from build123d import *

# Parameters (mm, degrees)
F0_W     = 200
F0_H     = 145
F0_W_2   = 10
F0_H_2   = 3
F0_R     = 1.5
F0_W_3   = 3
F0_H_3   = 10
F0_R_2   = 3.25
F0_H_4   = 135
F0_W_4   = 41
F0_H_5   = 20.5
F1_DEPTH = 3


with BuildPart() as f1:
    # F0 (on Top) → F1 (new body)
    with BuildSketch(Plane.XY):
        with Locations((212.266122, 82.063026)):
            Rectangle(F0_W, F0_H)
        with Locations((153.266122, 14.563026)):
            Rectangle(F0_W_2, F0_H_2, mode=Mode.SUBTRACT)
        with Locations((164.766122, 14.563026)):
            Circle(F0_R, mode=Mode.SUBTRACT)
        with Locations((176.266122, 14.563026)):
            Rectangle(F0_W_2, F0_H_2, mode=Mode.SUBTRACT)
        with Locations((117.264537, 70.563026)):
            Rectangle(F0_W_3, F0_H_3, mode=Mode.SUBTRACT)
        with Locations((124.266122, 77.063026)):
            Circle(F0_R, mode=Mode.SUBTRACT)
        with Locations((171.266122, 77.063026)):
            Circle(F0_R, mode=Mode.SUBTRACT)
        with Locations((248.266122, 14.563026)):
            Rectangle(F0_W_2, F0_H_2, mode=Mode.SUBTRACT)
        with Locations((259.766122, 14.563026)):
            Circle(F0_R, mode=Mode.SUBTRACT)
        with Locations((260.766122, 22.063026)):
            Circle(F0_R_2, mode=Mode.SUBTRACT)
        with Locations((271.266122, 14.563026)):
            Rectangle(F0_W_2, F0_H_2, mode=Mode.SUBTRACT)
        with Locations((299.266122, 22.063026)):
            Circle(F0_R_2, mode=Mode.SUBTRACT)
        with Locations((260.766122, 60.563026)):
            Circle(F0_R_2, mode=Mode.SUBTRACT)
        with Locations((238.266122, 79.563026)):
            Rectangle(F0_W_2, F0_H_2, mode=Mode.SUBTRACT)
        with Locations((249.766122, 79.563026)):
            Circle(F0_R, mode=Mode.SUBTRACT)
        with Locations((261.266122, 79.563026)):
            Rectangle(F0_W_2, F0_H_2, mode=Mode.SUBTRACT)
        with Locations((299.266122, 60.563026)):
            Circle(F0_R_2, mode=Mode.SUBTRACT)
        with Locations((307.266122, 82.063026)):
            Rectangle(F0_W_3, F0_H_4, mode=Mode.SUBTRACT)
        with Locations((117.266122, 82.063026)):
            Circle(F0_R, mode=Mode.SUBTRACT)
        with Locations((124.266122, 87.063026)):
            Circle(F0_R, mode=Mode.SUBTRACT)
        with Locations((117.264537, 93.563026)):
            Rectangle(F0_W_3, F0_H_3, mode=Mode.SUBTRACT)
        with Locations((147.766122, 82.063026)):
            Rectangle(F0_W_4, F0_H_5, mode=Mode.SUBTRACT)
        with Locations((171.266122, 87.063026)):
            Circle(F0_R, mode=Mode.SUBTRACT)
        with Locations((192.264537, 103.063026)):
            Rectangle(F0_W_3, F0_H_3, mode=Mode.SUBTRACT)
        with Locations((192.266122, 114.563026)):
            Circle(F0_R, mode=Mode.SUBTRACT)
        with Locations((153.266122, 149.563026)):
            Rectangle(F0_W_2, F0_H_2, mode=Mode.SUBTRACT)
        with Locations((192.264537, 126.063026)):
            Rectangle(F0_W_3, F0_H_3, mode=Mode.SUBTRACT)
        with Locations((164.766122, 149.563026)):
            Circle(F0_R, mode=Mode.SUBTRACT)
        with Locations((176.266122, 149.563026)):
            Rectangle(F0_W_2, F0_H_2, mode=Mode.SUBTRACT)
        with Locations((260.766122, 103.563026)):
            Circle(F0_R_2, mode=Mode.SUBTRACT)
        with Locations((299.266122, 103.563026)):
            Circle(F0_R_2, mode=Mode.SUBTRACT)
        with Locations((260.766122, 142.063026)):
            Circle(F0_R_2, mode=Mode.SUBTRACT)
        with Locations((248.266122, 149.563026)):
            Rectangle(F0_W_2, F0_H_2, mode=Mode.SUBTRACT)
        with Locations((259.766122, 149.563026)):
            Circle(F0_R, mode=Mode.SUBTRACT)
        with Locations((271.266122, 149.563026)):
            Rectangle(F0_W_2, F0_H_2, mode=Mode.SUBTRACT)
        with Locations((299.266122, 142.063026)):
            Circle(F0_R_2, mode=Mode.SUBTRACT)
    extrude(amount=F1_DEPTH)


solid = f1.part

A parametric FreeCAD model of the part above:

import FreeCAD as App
import Part
import Sketcher
Q = App.Units.Quantity

doc = App.newDocument("Part")
body = doc.addObject("PartDesign::Body", "Body")

sketch1 = doc.addObject("Sketcher::SketchObject", "Sketch")
body.addObject(sketch1)
sketch1.AttachmentSupport = (doc.XY_Plane, [""])
sketch1.MapMode = "FlatFace"
sketch1.addGeometry([
    Part.LineSegment(App.Vector(112.266122, 154.563026, 0), App.Vector(112.266122, 9.563026, 0)),
    Part.LineSegment(App.Vector(112.266122, 9.563026, 0), App.Vector(312.266122, 9.563026, 0)),
    Part.LineSegment(App.Vector(312.266122, 9.563026, 0), App.Vector(312.266122, 154.563026, 0)),
    Part.LineSegment(App.Vector(312.266122, 154.563026, 0), App.Vector(112.266122, 154.563026, 0)),
    Part.LineSegment(App.Vector(158.266122, 13.063026, 0), App.Vector(148.266122, 13.063026, 0)),
    Part.LineSegment(App.Vector(148.266122, 13.063026, 0), App.Vector(148.266122, 16.063026, 0)),
    Part.LineSegment(App.Vector(148.266122, 16.063026, 0), App.Vector(158.266122, 16.063026, 0)),
    Part.LineSegment(App.Vector(158.266122, 16.063026, 0), App.Vector(158.266122, 13.063026, 0)),
    Part.Circle(App.Vector(164.766122, 14.563026, 0), App.Vector(0, 0, 1), 1.5),
    Part.LineSegment(App.Vector(181.266122, 13.063026, 0), App.Vector(171.266122, 13.063026, 0)),
    Part.LineSegment(App.Vector(171.266122, 13.063026, 0), App.Vector(171.266122, 16.063026, 0)),
    Part.LineSegment(App.Vector(171.266122, 16.063026, 0), App.Vector(181.266122, 16.063026, 0)),
    Part.LineSegment(App.Vector(181.266122, 16.063026, 0), App.Vector(181.266122, 13.063026, 0)),
    Part.LineSegment(App.Vector(118.764537, 65.563026, 0), App.Vector(115.764537, 65.563026, 0)),
    Part.LineSegment(App.Vector(115.764537, 65.563026, 0), App.Vector(115.764537, 75.563026, 0)),
    Part.LineSegment(App.Vector(115.764537, 75.563026, 0), App.Vector(118.764537, 75.563026, 0)),
    Part.LineSegment(App.Vector(118.764537, 75.563026, 0), App.Vector(118.764537, 65.563026, 0)),
    Part.Circle(App.Vector(124.266122, 77.063026, 0), App.Vector(0, 0, 1), 1.5),
    Part.Circle(App.Vector(171.266122, 77.063026, 0), App.Vector(0, 0, 1), 1.5),
    Part.LineSegment(App.Vector(253.266122, 13.063026, 0), App.Vector(243.266122, 13.063026, 0)),
    Part.LineSegment(App.Vector(243.266122, 13.063026, 0), App.Vector(243.266122, 16.063026, 0)),
    Part.LineSegment(App.Vector(243.266122, 16.063026, 0), App.Vector(253.266122, 16.063026, 0)),
    Part.LineSegment(App.Vector(253.266122, 16.063026, 0), App.Vector(253.266122, 13.063026, 0)),
    Part.Circle(App.Vector(259.766122, 14.563026, 0), App.Vector(0, 0, 1), 1.5),
    Part.LineSegment(App.Vector(276.266122, 13.063026, 0), App.Vector(266.266122, 13.063026, 0)),
    Part.LineSegment(App.Vector(266.266122, 13.063026, 0), App.Vector(266.266122, 16.063026, 0)),
    Part.LineSegment(App.Vector(266.266122, 16.063026, 0), App.Vector(276.266122, 16.063026, 0)),
    Part.LineSegment(App.Vector(276.266122, 16.063026, 0), App.Vector(276.266122, 13.063026, 0)),
    Part.Circle(App.Vector(260.766122, 22.063026, 0), App.Vector(0, 0, 1), 3.25),
    Part.Circle(App.Vector(299.266122, 22.063026, 0), App.Vector(0, 0, 1), 3.25),
    Part.LineSegment(App.Vector(243.266122, 78.063026, 0), App.Vector(233.266122, 78.063026, 0)),
    Part.LineSegment(App.Vector(233.266122, 78.063026, 0), App.Vector(233.266122, 81.063026, 0)),
    Part.LineSegment(App.Vector(233.266122, 81.063026, 0), App.Vector(243.266122, 81.063026, 0)),
    Part.LineSegment(App.Vector(243.266122, 81.063026, 0), App.Vector(243.266122, 78.063026, 0)),
    Part.Circle(App.Vector(249.766122, 79.563026, 0), App.Vector(0, 0, 1), 1.5),
    Part.Circle(App.Vector(260.766122, 60.563026, 0), App.Vector(0, 0, 1), 3.25),
    Part.Circle(App.Vector(299.266122, 60.563026, 0), App.Vector(0, 0, 1), 3.25),
    Part.LineSegment(App.Vector(266.266122, 78.063026, 0), App.Vector(256.266122, 78.063026, 0)),
    Part.LineSegment(App.Vector(256.266122, 78.063026, 0), App.Vector(256.266122, 81.063026, 0)),
    Part.LineSegment(App.Vector(256.266122, 81.063026, 0), App.Vector(266.266122, 81.063026, 0)),
    Part.LineSegment(App.Vector(266.266122, 81.063026, 0), App.Vector(266.266122, 78.063026, 0)),
    Part.Circle(App.Vector(117.266122, 82.063026, 0), App.Vector(0, 0, 1), 1.5),
    Part.Circle(App.Vector(124.266122, 87.063026, 0), App.Vector(0, 0, 1), 1.5),
    Part.LineSegment(App.Vector(118.764537, 88.563026, 0), App.Vector(115.764537, 88.563026, 0)),
    Part.LineSegment(App.Vector(115.764537, 88.563026, 0), App.Vector(115.764537, 98.563026, 0)),
    Part.LineSegment(App.Vector(115.764537, 98.563026, 0), App.Vector(118.764537, 98.563026, 0)),
    Part.LineSegment(App.Vector(118.764537, 98.563026, 0), App.Vector(118.764537, 88.563026, 0)),
    Part.LineSegment(App.Vector(168.266122, 71.813026, 0), App.Vector(127.266122, 71.813026, 0)),
    Part.LineSegment(App.Vector(127.266122, 71.813026, 0), App.Vector(127.266122, 92.313026, 0)),
    Part.LineSegment(App.Vector(127.266122, 92.313026, 0), App.Vector(168.266122, 92.313026, 0)),
    Part.LineSegment(App.Vector(168.266122, 92.313026, 0), App.Vector(168.266122, 71.813026, 0)),
    Part.Circle(App.Vector(171.266122, 87.063026, 0), App.Vector(0, 0, 1), 1.5),
    Part.LineSegment(App.Vector(193.764537, 98.063026, 0), App.Vector(190.764537, 98.063026, 0)),
    Part.LineSegment(App.Vector(190.764537, 98.063026, 0), App.Vector(190.764537, 108.063026, 0)),
    Part.LineSegment(App.Vector(190.764537, 108.063026, 0), App.Vector(193.764537, 108.063026, 0)),
    Part.LineSegment(App.Vector(193.764537, 108.063026, 0), App.Vector(193.764537, 98.063026, 0)),
    Part.Circle(App.Vector(192.266122, 114.563026, 0), App.Vector(0, 0, 1), 1.5),
    Part.LineSegment(App.Vector(158.266122, 148.063026, 0), App.Vector(148.266122, 148.063026, 0)),
    Part.LineSegment(App.Vector(148.266122, 148.063026, 0), App.Vector(148.266122, 151.063026, 0)),
    Part.LineSegment(App.Vector(148.266122, 151.063026, 0), App.Vector(158.266122, 151.063026, 0)),
    Part.LineSegment(App.Vector(158.266122, 151.063026, 0), App.Vector(158.266122, 148.063026, 0)),
    Part.LineSegment(App.Vector(193.764537, 121.063026, 0), App.Vector(190.764537, 121.063026, 0)),
    Part.LineSegment(App.Vector(190.764537, 121.063026, 0), App.Vector(190.764537, 131.063026, 0)),
    Part.LineSegment(App.Vector(190.764537, 131.063026, 0), App.Vector(193.764537, 131.063026, 0)),
    Part.LineSegment(App.Vector(193.764537, 131.063026, 0), App.Vector(193.764537, 121.063026, 0)),
    Part.Circle(App.Vector(164.766122, 149.563026, 0), App.Vector(0, 0, 1), 1.5),
    Part.LineSegment(App.Vector(181.266122, 148.063026, 0), App.Vector(171.266122, 148.063026, 0)),
    Part.LineSegment(App.Vector(171.266122, 148.063026, 0), App.Vector(171.266122, 151.063026, 0)),
    Part.LineSegment(App.Vector(171.266122, 151.063026, 0), App.Vector(181.266122, 151.063026, 0)),
    Part.LineSegment(App.Vector(181.266122, 151.063026, 0), App.Vector(181.266122, 148.063026, 0)),
    Part.LineSegment(App.Vector(308.766122, 14.563026, 0), App.Vector(305.766122, 14.563026, 0)),
    Part.LineSegment(App.Vector(305.766122, 14.563026, 0), App.Vector(305.766122, 149.563026, 0)),
    Part.LineSegment(App.Vector(305.766122, 149.563026, 0), App.Vector(308.766122, 149.563026, 0)),
    Part.LineSegment(App.Vector(308.766122, 149.563026, 0), App.Vector(308.766122, 14.563026, 0)),
    Part.Circle(App.Vector(260.766122, 103.563026, 0), App.Vector(0, 0, 1), 3.25),
    Part.Circle(App.Vector(299.266122, 103.563026, 0), App.Vector(0, 0, 1), 3.25),
    Part.LineSegment(App.Vector(253.266122, 148.063026, 0), App.Vector(243.266122, 148.063026, 0)),
    Part.LineSegment(App.Vector(243.266122, 148.063026, 0), App.Vector(243.266122, 151.063026, 0)),
    Part.LineSegment(App.Vector(243.266122, 151.063026, 0), App.Vector(253.266122, 151.063026, 0)),
    Part.LineSegment(App.Vector(253.266122, 151.063026, 0), App.Vector(253.266122, 148.063026, 0)),
    Part.Circle(App.Vector(259.766122, 149.563026, 0), App.Vector(0, 0, 1), 1.5),
    Part.Circle(App.Vector(260.766122, 142.063026, 0), App.Vector(0, 0, 1), 3.25),
    Part.LineSegment(App.Vector(276.266122, 148.063026, 0), App.Vector(266.266122, 148.063026, 0)),
    Part.LineSegment(App.Vector(266.266122, 148.063026, 0), App.Vector(266.266122, 151.063026, 0)),
    Part.LineSegment(App.Vector(266.266122, 151.063026, 0), App.Vector(276.266122, 151.063026, 0)),
    Part.LineSegment(App.Vector(276.266122, 151.063026, 0), App.Vector(276.266122, 148.063026, 0)),
    Part.Circle(App.Vector(299.266122, 142.063026, 0), App.Vector(0, 0, 1), 3.25),
], False)
sketch1.addConstraint([
    Sketcher.Constraint("Coincident", 0, 2, 1, 1),
    Sketcher.Constraint("Coincident", 1, 2, 2, 1),
    Sketcher.Constraint("Coincident", 2, 2, 3, 1),
    Sketcher.Constraint("Coincident", 3, 2, 0, 1),
    Sketcher.Constraint("Coincident", 4, 2, 5, 1),
    Sketcher.Constraint("Coincident", 5, 2, 6, 1),
    Sketcher.Constraint("Coincident", 6, 2, 7, 1),
    Sketcher.Constraint("Coincident", 7, 2, 4, 1),
    Sketcher.Constraint("Coincident", 9, 2, 10, 1),
    Sketcher.Constraint("Coincident", 10, 2, 11, 1),
    Sketcher.Constraint("Coincident", 11, 2, 12, 1),
    Sketcher.Constraint("Coincident", 12, 2, 9, 1),
    Sketcher.Constraint("Coincident", 13, 2, 14, 1),
    Sketcher.Constraint("Coincident", 14, 2, 15, 1),
    Sketcher.Constraint("Coincident", 15, 2, 16, 1),
    Sketcher.Constraint("Coincident", 16, 2, 13, 1),
    Sketcher.Constraint("Coincident", 19, 2, 20, 1),
    Sketcher.Constraint("Coincident", 20, 2, 21, 1),
    Sketcher.Constraint("Coincident", 21, 2, 22, 1),
    Sketcher.Constraint("Coincident", 22, 2, 19, 1),
    Sketcher.Constraint("Coincident", 24, 2, 25, 1),
    Sketcher.Constraint("Coincident", 25, 2, 26, 1),
    Sketcher.Constraint("Coincident", 26, 2, 27, 1),
    Sketcher.Constraint("Coincident", 27, 2, 24, 1),
    Sketcher.Constraint("Coincident", 30, 2, 31, 1),
    Sketcher.Constraint("Coincident", 31, 2, 32, 1),
    Sketcher.Constraint("Coincident", 32, 2, 33, 1),
    Sketcher.Constraint("Coincident", 33, 2, 30, 1),
    Sketcher.Constraint("Coincident", 37, 2, 38, 1),
    Sketcher.Constraint("Coincident", 38, 2, 39, 1),
    Sketcher.Constraint("Coincident", 39, 2, 40, 1),
    Sketcher.Constraint("Coincident", 40, 2, 37, 1),
    Sketcher.Constraint("Coincident", 43, 2, 44, 1),
    Sketcher.Constraint("Coincident", 44, 2, 45, 1),
    Sketcher.Constraint("Coincident", 45, 2, 46, 1),
    Sketcher.Constraint("Coincident", 46, 2, 43, 1),
    Sketcher.Constraint("Coincident", 47, 2, 48, 1),
    Sketcher.Constraint("Coincident", 48, 2, 49, 1),
    Sketcher.Constraint("Coincident", 49, 2, 50, 1),
    Sketcher.Constraint("Coincident", 50, 2, 47, 1),
    Sketcher.Constraint("Coincident", 52, 2, 53, 1),
    Sketcher.Constraint("Coincident", 53, 2, 54, 1),
    Sketcher.Constraint("Coincident", 54, 2, 55, 1),
    Sketcher.Constraint("Coincident", 55, 2, 52, 1),
    Sketcher.Constraint("Coincident", 57, 2, 58, 1),
    Sketcher.Constraint("Coincident", 58, 2, 59, 1),
    Sketcher.Constraint("Coincident", 59, 2, 60, 1),
    Sketcher.Constraint("Coincident", 60, 2, 57, 1),
    Sketcher.Constraint("Coincident", 61, 2, 62, 1),
    Sketcher.Constraint("Coincident", 62, 2, 63, 1),
    Sketcher.Constraint("Coincident", 63, 2, 64, 1),
    Sketcher.Constraint("Coincident", 64, 2, 61, 1),
    Sketcher.Constraint("Coincident", 66, 2, 67, 1),
    Sketcher.Constraint("Coincident", 67, 2, 68, 1),
    Sketcher.Constraint("Coincident", 68, 2, 69, 1),
    Sketcher.Constraint("Coincident", 69, 2, 66, 1),
    Sketcher.Constraint("Coincident", 70, 2, 71, 1),
    Sketcher.Constraint("Coincident", 71, 2, 72, 1),
    Sketcher.Constraint("Coincident", 72, 2, 73, 1),
    Sketcher.Constraint("Coincident", 73, 2, 70, 1),
    Sketcher.Constraint("Coincident", 76, 2, 77, 1),
    Sketcher.Constraint("Coincident", 77, 2, 78, 1),
    Sketcher.Constraint("Coincident", 78, 2, 79, 1),
    Sketcher.Constraint("Coincident", 79, 2, 76, 1),
    Sketcher.Constraint("Coincident", 82, 2, 83, 1),
    Sketcher.Constraint("Coincident", 83, 2, 84, 1),
    Sketcher.Constraint("Coincident", 84, 2, 85, 1),
    Sketcher.Constraint("Coincident", 85, 2, 82, 1),
    Sketcher.Constraint("Vertical", 0),
    Sketcher.Constraint("Horizontal", 1),
    Sketcher.Constraint("Vertical", 2),
    Sketcher.Constraint("Horizontal", 3),
    Sketcher.Constraint("Horizontal", 4),
    Sketcher.Constraint("Vertical", 5),
    Sketcher.Constraint("Horizontal", 6),
    Sketcher.Constraint("Vertical", 7),
    Sketcher.Constraint("Horizontal", 9),
    Sketcher.Constraint("Vertical", 10),
    Sketcher.Constraint("Horizontal", 11),
    Sketcher.Constraint("Vertical", 12),
    Sketcher.Constraint("Horizontal", 13),
    Sketcher.Constraint("Vertical", 14),
    Sketcher.Constraint("Horizontal", 15),
    Sketcher.Constraint("Vertical", 16),
    Sketcher.Constraint("Horizontal", 19),
    Sketcher.Constraint("Vertical", 20),
    Sketcher.Constraint("Horizontal", 21),
    Sketcher.Constraint("Vertical", 22),
    Sketcher.Constraint("Horizontal", 24),
    Sketcher.Constraint("Vertical", 25),
    Sketcher.Constraint("Horizontal", 26),
    Sketcher.Constraint("Vertical", 27),
    Sketcher.Constraint("Horizontal", 30),
    Sketcher.Constraint("Vertical", 31),
    Sketcher.Constraint("Horizontal", 32),
    Sketcher.Constraint("Vertical", 33),
    Sketcher.Constraint("Horizontal", 37),
    Sketcher.Constraint("Vertical", 38),
    Sketcher.Constraint("Horizontal", 39),
    Sketcher.Constraint("Vertical", 40),
    Sketcher.Constraint("Horizontal", 43),
    Sketcher.Constraint("Vertical", 44),
    Sketcher.Constraint("Horizontal", 45),
    Sketcher.Constraint("Vertical", 46),
    Sketcher.Constraint("Horizontal", 47),
    Sketcher.Constraint("Vertical", 48),
    Sketcher.Constraint("Horizontal", 49),
    Sketcher.Constraint("Vertical", 50),
    Sketcher.Constraint("Horizontal", 52),
    Sketcher.Constraint("Vertical", 53),
    Sketcher.Constraint("Horizontal", 54),
    Sketcher.Constraint("Vertical", 55),
    Sketcher.Constraint("Horizontal", 57),
    Sketcher.Constraint("Vertical", 58),
    Sketcher.Constraint("Horizontal", 59),
    Sketcher.Constraint("Vertical", 60),
    Sketcher.Constraint("Horizontal", 61),
    Sketcher.Constraint("Vertical", 62),
    Sketcher.Constraint("Horizontal", 63),
    Sketcher.Constraint("Vertical", 64),
    Sketcher.Constraint("Horizontal", 66),
    Sketcher.Constraint("Vertical", 67),
    Sketcher.Constraint("Horizontal", 68),
    Sketcher.Constraint("Vertical", 69),
    Sketcher.Constraint("Horizontal", 70),
    Sketcher.Constraint("Vertical", 71),
    Sketcher.Constraint("Horizontal", 72),
    Sketcher.Constraint("Vertical", 73),
    Sketcher.Constraint("Horizontal", 76),
    Sketcher.Constraint("Vertical", 77),
    Sketcher.Constraint("Horizontal", 78),
    Sketcher.Constraint("Vertical", 79),
    Sketcher.Constraint("Horizontal", 82),
    Sketcher.Constraint("Vertical", 83),
    Sketcher.Constraint("Horizontal", 84),
    Sketcher.Constraint("Vertical", 85),
    Sketcher.Constraint("Equal", 8, 17),
    Sketcher.Constraint("Equal", 17, 18),
    Sketcher.Constraint("Equal", 18, 23),
    Sketcher.Constraint("Equal", 28, 29),
    Sketcher.Constraint("Equal", 23, 34),
    Sketcher.Constraint("Equal", 29, 35),
    Sketcher.Constraint("Equal", 35, 36),
    Sketcher.Constraint("Equal", 34, 41),
    Sketcher.Constraint("Equal", 41, 42),
    Sketcher.Constraint("Equal", 42, 51),
    Sketcher.Constraint("Equal", 51, 56),
    Sketcher.Constraint("Equal", 56, 65),
    Sketcher.Constraint("Equal", 36, 74),
    Sketcher.Constraint("Equal", 74, 75),
    Sketcher.Constraint("Equal", 65, 80),
    Sketcher.Constraint("Equal", 75, 81),
    Sketcher.Constraint("Equal", 81, 86),
    Sketcher.Constraint("Horizontal", 17, 3, 18, 3),
    Sketcher.Constraint("Horizontal", 8, 3, 23, 3),
    Sketcher.Constraint("Horizontal", 28, 3, 29, 3),
    Sketcher.Constraint("Horizontal", 35, 3, 36, 3),
    Sketcher.Constraint("Horizontal", 42, 3, 51, 3),
    Sketcher.Constraint("Horizontal", 74, 3, 75, 3),
    Sketcher.Constraint("Horizontal", 65, 3, 80, 3),
    Sketcher.Constraint("Horizontal", 81, 3, 86, 3),
    Sketcher.Constraint("Horizontal", 7, 2, 9, 2),
    Sketcher.Constraint("Horizontal", 6, 2, 10, 2),
    Sketcher.Constraint("Horizontal", 12, 2, 19, 2),
    Sketcher.Constraint("Horizontal", 11, 2, 20, 2),
    Sketcher.Constraint("Horizontal", 22, 2, 24, 2),
    Sketcher.Constraint("Horizontal", 21, 2, 25, 2),
    Sketcher.Constraint("Horizontal", 33, 2, 37, 2),
    Sketcher.Constraint("Horizontal", 32, 2, 38, 2),
    Sketcher.Constraint("Horizontal", 60, 2, 66, 2),
    Sketcher.Constraint("Horizontal", 59, 2, 67, 2),
    Sketcher.Constraint("Horizontal", 23, 3, 70, 2),
    Sketcher.Constraint("Horizontal", 80, 3, 71, 2),
    Sketcher.Constraint("Horizontal", 69, 2, 76, 2),
    Sketcher.Constraint("Horizontal", 68, 2, 77, 2),
    Sketcher.Constraint("Horizontal", 79, 2, 82, 2),
    Sketcher.Constraint("Horizontal", 78, 2, 83, 2),
    Sketcher.Constraint("Vertical", 28, 3, 35, 3),
    Sketcher.Constraint("Vertical", 29, 3, 36, 3),
    Sketcher.Constraint("Vertical", 17, 3, 42, 3),
    Sketcher.Constraint("Vertical", 18, 3, 51, 3),
    Sketcher.Constraint("Vertical", 8, 3, 65, 3),
    Sketcher.Constraint("Vertical", 35, 3, 74, 3),
    Sketcher.Constraint("Vertical", 36, 3, 75, 3),
    Sketcher.Constraint("Vertical", 23, 3, 80, 3),
    Sketcher.Constraint("Vertical", 74, 3, 81, 3),
    Sketcher.Constraint("Vertical", 75, 3, 86, 3),
    Sketcher.Constraint("Vertical", 51, 3, 9, 2),
    Sketcher.Constraint("Vertical", 20, 2, 32, 2),
    Sketcher.Constraint("Vertical", 25, 2, 39, 2),
    Sketcher.Constraint("Vertical", 14, 2, 43, 2),
    Sketcher.Constraint("Vertical", 16, 2, 45, 2),
    Sketcher.Constraint("Vertical", 5, 2, 57, 2),
    Sketcher.Constraint("Vertical", 7, 2, 59, 2),
    Sketcher.Constraint("Vertical", 53, 2, 61, 2),
    Sketcher.Constraint("Vertical", 55, 2, 63, 2),
    Sketcher.Constraint("Vertical", 10, 2, 66, 2),
    Sketcher.Constraint("Vertical", 12, 2, 68, 2),
    Sketcher.Constraint("Vertical", 33, 2, 76, 2),
    Sketcher.Constraint("Vertical", 22, 2, 78, 2),
    Sketcher.Constraint("Vertical", 40, 2, 82, 2),
    Sketcher.Constraint("Vertical", 27, 2, 84, 2),
    Sketcher.Constraint("Equal", 6, 9),
    Sketcher.Constraint("Equal", 11, 19),
    Sketcher.Constraint("Equal", 21, 24),
    Sketcher.Constraint("Equal", 26, 30),
    Sketcher.Constraint("Equal", 32, 37),
    Sketcher.Constraint("Equal", 45, 52),
    Sketcher.Constraint("Equal", 63, 70),
    Sketcher.Constraint("Equal", 72, 5),
    Sketcher.Constraint("Equal", 84, 14),
    Sketcher.Constraint("Equal", 27, 31),
    Sketcher.Constraint("Equal", 16, 44),
    Sketcher.Constraint("Equal", 46, 53),
    Sketcher.Constraint("Equal", 40, 58),
    Sketcher.Constraint("Equal", 55, 62),
    Sketcher.Constraint("Diameter", 8, Q("3 mm")),
    Sketcher.Constraint("Diameter", 28, Q("6.5 mm")),
    Sketcher.Constraint("DistanceX", 1, 1, 1, 2, Q("200 mm")),
    Sketcher.Constraint("DistanceX", 4, 2, 4, 1, Q("10 mm")),
    Sketcher.Constraint("DistanceX", 13, 2, 13, 1, Q("3 mm")),
    Sketcher.Constraint("DistanceX", 47, 2, 47, 1, Q("41 mm")),
    Sketcher.Constraint("DistanceY", 0, 2, 0, 1, Q("145 mm")),
    Sketcher.Constraint("DistanceY", 71, 1, 71, 2, Q("135 mm")),
    Sketcher.Constraint("DistanceY", 48, 1, 48, 2, Q("20.5 mm")),
    Sketcher.Constraint("DistanceX", -1, 1, 8, 3, Q("164.766122 mm")),
    Sketcher.Constraint("DistanceX", -1, 1, 17, 3, Q("124.266122 mm")),
    Sketcher.Constraint("DistanceX", -1, 1, 18, 3, Q("171.266122 mm")),
    Sketcher.Constraint("DistanceX", -1, 1, 23, 3, Q("259.766122 mm")),
    Sketcher.Constraint("DistanceX", -1, 1, 28, 3, Q("260.766122 mm")),
    Sketcher.Constraint("DistanceX", -1, 1, 29, 3, Q("299.266122 mm")),
    Sketcher.Constraint("DistanceX", -1, 1, 34, 3, Q("249.766122 mm")),
    Sketcher.Constraint("DistanceX", -1, 1, 41, 3, Q("117.266122 mm")),
    Sketcher.Constraint("DistanceX", -1, 1, 56, 3, Q("192.266122 mm")),
    Sketcher.Constraint("DistanceX", -1, 1, 0, 2, Q("112.266122 mm")),
    Sketcher.Constraint("DistanceX", -1, 1, 4, 2, Q("148.266122 mm")),
    Sketcher.Constraint("DistanceX", -1, 1, 19, 2, Q("243.266122 mm")),
    Sketcher.Constraint("DistanceX", -1, 1, 24, 2, Q("266.266122 mm")),
    Sketcher.Constraint("DistanceX", -1, 1, 47, 2, Q("127.266122 mm")),
    Sketcher.Constraint("DistanceX", -1, 1, 70, 2, Q("305.766122 mm")),
    Sketcher.Constraint("DistanceY", -1, 1, 8, 3, Q("14.563026 mm")),
    Sketcher.Constraint("DistanceY", -1, 1, 17, 3, Q("77.063026 mm")),
    Sketcher.Constraint("DistanceY", -1, 1, 28, 3, Q("22.063026 mm")),
    Sketcher.Constraint("DistanceY", -1, 1, 34, 3, Q("79.563026 mm")),
    Sketcher.Constraint("DistanceY", -1, 1, 35, 3, Q("60.563026 mm")),
    Sketcher.Constraint("DistanceY", -1, 1, 41, 3, Q("82.063026 mm")),
    Sketcher.Constraint("DistanceY", -1, 1, 42, 3, Q("87.063026 mm")),
    Sketcher.Constraint("DistanceY", -1, 1, 56, 3, Q("114.563026 mm")),
    Sketcher.Constraint("DistanceY", -1, 1, 74, 3, Q("103.563026 mm")),
    Sketcher.Constraint("DistanceY", -1, 1, 81, 3, Q("142.063026 mm")),
    Sketcher.Constraint("DistanceY", -1, 1, 0, 2, Q("9.563026 mm")),
    Sketcher.Constraint("DistanceY", -1, 1, 4, 2, Q("13.063026 mm")),
    Sketcher.Constraint("DistanceX", -1, 1, 13, 2, Q("115.764537 mm")),
    Sketcher.Constraint("DistanceY", -1, 1, 13, 2, Q("65.563026 mm")),
    Sketcher.Constraint("DistanceY", -1, 1, 30, 2, Q("78.063026 mm")),
    Sketcher.Constraint("DistanceY", -1, 1, 43, 2, Q("88.563026 mm")),
    Sketcher.Constraint("DistanceY", -1, 1, 47, 2, Q("71.813026 mm")),
    Sketcher.Constraint("DistanceX", -1, 1, 52, 2, Q("190.764537 mm")),
    Sketcher.Constraint("DistanceY", -1, 1, 52, 2, Q("98.063026 mm")),
    Sketcher.Constraint("DistanceY", -1, 1, 57, 2, Q("148.063026 mm")),
    Sketcher.Constraint("DistanceY", -1, 1, 61, 2, Q("121.063026 mm")),
])
pad1 = doc.addObject("PartDesign::Pad", "Pad")
body.addObject(pad1)
pad1.Profile = sketch1
pad1.Length = 3

doc.recompute()
